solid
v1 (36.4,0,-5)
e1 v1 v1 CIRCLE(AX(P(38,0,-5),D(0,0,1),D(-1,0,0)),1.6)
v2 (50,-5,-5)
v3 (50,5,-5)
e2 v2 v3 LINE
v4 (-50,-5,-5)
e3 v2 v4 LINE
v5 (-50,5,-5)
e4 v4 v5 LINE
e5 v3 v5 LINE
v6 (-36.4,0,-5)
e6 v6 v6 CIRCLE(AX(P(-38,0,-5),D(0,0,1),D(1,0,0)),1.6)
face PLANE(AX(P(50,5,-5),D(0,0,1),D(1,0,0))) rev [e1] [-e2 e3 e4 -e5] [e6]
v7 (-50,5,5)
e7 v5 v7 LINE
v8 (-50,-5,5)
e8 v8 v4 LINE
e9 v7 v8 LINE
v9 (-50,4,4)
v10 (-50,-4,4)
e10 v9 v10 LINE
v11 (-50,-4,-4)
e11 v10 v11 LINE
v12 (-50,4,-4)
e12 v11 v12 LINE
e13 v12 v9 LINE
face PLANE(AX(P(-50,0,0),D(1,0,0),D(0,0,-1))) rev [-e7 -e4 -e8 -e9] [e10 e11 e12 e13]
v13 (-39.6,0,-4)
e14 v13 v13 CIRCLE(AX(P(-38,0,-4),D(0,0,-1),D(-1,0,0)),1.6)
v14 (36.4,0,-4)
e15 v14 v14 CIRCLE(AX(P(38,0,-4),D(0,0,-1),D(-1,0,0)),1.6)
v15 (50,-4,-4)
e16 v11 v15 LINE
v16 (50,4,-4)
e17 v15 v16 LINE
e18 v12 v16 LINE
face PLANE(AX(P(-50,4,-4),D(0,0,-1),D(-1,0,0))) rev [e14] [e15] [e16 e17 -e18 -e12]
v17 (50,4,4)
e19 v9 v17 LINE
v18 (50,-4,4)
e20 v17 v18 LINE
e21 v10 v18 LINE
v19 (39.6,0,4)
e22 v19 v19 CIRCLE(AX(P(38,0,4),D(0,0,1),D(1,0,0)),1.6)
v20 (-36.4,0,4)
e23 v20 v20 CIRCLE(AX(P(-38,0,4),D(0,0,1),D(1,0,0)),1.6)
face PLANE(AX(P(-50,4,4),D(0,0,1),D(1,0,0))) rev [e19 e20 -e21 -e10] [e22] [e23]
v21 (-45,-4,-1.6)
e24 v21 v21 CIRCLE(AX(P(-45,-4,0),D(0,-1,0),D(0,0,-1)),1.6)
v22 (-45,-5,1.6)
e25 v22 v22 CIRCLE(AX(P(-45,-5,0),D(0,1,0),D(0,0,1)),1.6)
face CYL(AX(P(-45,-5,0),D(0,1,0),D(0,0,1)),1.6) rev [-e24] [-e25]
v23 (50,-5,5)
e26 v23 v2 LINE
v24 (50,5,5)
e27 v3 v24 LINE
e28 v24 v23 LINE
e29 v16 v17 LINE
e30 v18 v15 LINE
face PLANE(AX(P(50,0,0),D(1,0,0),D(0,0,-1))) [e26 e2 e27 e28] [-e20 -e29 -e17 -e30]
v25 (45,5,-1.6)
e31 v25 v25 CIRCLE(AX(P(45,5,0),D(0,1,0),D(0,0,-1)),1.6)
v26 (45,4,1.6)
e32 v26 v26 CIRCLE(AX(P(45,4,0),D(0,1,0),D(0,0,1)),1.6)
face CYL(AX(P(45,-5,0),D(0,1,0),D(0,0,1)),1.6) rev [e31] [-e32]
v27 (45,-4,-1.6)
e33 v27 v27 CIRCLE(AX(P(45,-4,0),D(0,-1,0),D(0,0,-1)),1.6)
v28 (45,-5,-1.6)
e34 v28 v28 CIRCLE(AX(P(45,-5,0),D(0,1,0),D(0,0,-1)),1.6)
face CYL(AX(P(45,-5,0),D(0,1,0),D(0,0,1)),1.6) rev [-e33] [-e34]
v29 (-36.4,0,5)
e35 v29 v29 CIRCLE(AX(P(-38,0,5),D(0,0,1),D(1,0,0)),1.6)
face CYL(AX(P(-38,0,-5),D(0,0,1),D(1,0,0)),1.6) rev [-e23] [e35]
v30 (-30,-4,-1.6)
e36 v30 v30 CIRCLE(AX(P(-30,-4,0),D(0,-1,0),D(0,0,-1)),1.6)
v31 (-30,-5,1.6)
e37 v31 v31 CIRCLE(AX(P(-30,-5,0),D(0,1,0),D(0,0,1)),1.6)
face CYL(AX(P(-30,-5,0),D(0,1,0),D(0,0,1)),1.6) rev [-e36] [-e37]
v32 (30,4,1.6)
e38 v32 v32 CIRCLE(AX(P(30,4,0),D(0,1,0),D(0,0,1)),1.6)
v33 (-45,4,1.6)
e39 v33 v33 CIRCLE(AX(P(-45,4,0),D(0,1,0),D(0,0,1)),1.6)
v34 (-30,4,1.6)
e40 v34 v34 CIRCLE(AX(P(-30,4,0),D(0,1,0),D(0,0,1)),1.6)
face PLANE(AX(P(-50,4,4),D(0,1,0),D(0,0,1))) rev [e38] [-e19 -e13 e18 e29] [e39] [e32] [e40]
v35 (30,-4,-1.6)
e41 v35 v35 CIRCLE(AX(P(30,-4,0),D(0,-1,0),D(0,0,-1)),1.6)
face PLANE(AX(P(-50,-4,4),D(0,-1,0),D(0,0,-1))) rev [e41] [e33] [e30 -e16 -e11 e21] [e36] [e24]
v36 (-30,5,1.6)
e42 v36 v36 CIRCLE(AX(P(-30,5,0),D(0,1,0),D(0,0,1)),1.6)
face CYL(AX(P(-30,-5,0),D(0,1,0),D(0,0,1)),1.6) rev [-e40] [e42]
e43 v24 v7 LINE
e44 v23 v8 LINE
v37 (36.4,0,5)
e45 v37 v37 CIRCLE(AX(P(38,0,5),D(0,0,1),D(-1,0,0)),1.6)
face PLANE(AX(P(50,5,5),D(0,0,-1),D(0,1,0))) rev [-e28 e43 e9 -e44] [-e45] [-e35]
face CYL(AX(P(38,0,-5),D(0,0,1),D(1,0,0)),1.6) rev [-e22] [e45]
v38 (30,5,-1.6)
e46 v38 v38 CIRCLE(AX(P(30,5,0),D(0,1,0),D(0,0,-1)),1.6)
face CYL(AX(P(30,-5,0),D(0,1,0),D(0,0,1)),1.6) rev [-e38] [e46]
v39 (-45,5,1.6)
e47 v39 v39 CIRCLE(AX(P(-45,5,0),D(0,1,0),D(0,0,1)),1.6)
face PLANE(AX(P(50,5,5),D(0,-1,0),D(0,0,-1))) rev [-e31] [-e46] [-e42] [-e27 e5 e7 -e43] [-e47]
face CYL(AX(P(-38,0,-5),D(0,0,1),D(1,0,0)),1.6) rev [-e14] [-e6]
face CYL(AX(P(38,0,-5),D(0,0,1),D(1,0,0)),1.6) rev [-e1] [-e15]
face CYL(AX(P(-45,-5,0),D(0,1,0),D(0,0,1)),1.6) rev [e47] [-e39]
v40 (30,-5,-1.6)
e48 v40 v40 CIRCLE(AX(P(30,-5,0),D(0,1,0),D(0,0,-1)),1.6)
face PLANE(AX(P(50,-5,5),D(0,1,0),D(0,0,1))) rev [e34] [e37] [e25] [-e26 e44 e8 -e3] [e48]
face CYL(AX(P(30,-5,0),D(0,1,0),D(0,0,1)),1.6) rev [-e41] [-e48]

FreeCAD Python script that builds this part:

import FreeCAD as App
import Part
import Sketcher


def add_polygon(sketch, points):
    """Adds a closed chain of lines whose ends are joined by coincident constraints."""
    first, n = sketch.GeometryCount, len(points)
    for a, b in zip(points, points[1:] + points[:1]):
        sketch.addGeometry(Part.LineSegment(App.Vector(*a, 0), App.Vector(*b, 0)), False)
    for i in range(n):
        sketch.addConstraint(Sketcher.Constraint("Coincident", first + i, 2, first + (i + 1) % n, 1))

doc = App.newDocument("Part")
body = doc.addObject("PartDesign::Body", "Body")

# Sketch on YZ plane
sketch1 = body.newObject("Sketcher::SketchObject", "Sketch")
sketch1.AttachmentSupport = (doc.getObject("YZ_Plane"), [""])
sketch1.MapMode = "FlatFace"
add_polygon(sketch1, [(5, 5), (-5, 5), (-5, -5), (5, -5)])  # lines 0-3
sketch1.addConstraint([
    Sketcher.Constraint("Horizontal", 0),
    Sketcher.Constraint("Vertical", 1),
    Sketcher.Constraint("Horizontal", 2),
    Sketcher.Constraint("Vertical", 3),
    Sketcher.Constraint("Symmetric", 0, 2, 2, 2, -1, 1),
    Sketcher.Constraint("Equal", 2, 1),
    Sketcher.Constraint("DistanceX", 0, 2, 0, 1, 10.0),
])
pad1 = body.newObject("PartDesign::Pad", "Pad")
pad1.Profile = sketch1
pad1.Length = 100
pad1.Midplane = True

# Sketch on YZ plane
sketch2 = body.newObject("Sketcher::SketchObject", "Sketch001")
sketch2.AttachmentSupport = (doc.getObject("YZ_Plane"), [""])
sketch2.MapMode = "FlatFace"
sketch2.AttachmentOffset = App.Placement(App.Vector(0, 0, 50), App.Rotation())
add_polygon(sketch2, [(4, 4), (-4, 4), (-4, -4), (4, -4)])  # lines 0-3
sketch2.addConstraint([
    Sketcher.Constraint("Horizontal", 0),
    Sketcher.Constraint("Vertical", 1),
    Sketcher.Constraint("Horizontal", 2),
    Sketcher.Constraint("Vertical", 3),
    Sketcher.Constraint("Symmetric", 0, 2, 2, 2, -1, 1),
    Sketcher.Constraint("Equal", 2, 1),
    Sketcher.Constraint("DistanceX", 0, 2, 0, 1, 8.0),
])
pocket1 = body.newObject("PartDesign::Pocket", "Pocket")
pocket1.Profile = sketch2
pocket1.Type = "ThroughAll"

# Sketch on XZ plane
sketch3 = body.newObject("Sketcher::SketchObject", "Sketch002")
sketch3.AttachmentSupport = (doc.getObject("XZ_Plane"), [""])
sketch3.MapMode = "FlatFace"
sketch3.AttachmentOffset = App.Placement(App.Vector(0, 0, -5), App.Rotation())
sketch3.addGeometry([
    Part.Circle(App.Vector(-45, 0, 0), App.Vector(0, 0, 1), 1.6),
    Part.Circle(App.Vector(-30, 0, 0), App.Vector(0, 0, 1), 1.6),
    Part.Circle(App.Vector(30, 0, 0), App.Vector(0, 0, 1), 1.6),
    Part.Circle(App.Vector(45, 0, 0), App.Vector(0, 0, 1), 1.6),
], False)
sketch3.addConstraint([
    Sketcher.Constraint("Equal", 0, 1),
    Sketcher.Constraint("Equal", 1, 2),
    Sketcher.Constraint("Equal", 2, 3),
    Sketcher.Constraint("Symmetric", 1, 3, 2, 3, -1, 1),
    Sketcher.Constraint("Symmetric", 0, 3, 3, 3, -1, 1),
    Sketcher.Constraint("PointOnObject", 0, 3, -1),
    Sketcher.Constraint("PointOnObject", 1, 3, -1),
    Sketcher.Constraint("Diameter", 0, 3.2),
    Sketcher.Constraint("DistanceX", 0, 3, -1, 1, 45.0),
    Sketcher.Constraint("DistanceX", 1, 3, -1, 1, 30.0),
])
pocket2 = body.newObject("PartDesign::Pocket", "Pocket001")
pocket2.Profile = sketch3
pocket2.Type = "ThroughAll"
pocket2.Reversed = True

# Sketch on XY plane
sketch4 = body.newObject("Sketcher::SketchObject", "Sketch003")
sketch4.AttachmentSupport = (doc.getObject("XY_Plane"), [""])
sketch4.MapMode = "FlatFace"
sketch4.AttachmentOffset = App.Placement(App.Vector(0, 0, 5), App.Rotation())
sketch4.addGeometry([
    Part.Circle(App.Vector(-38, 0, 0), App.Vector(0, 0, 1), 1.6),
    Part.Circle(App.Vector(38, 0, 0), App.Vector(0, 0, 1), 1.6),
], False)
sketch4.addConstraint([
    Sketcher.Constraint("Equal", 0, 1),
    Sketcher.Constraint("Symmetric", 0, 3, 1, 3, -1, 1),
    Sketcher.Constraint("PointOnObject", 0, 3, -1),
    Sketcher.Constraint("Diameter", 0, 3.2),
    Sketcher.Constraint("DistanceX", 0, 3, -1, 1, 38.0),
])
pocket3 = body.newObject("PartDesign::Pocket", "Pocket002")
pocket3.Profile = sketch4
pocket3.Type = "ThroughAll"

doc.recompute()
